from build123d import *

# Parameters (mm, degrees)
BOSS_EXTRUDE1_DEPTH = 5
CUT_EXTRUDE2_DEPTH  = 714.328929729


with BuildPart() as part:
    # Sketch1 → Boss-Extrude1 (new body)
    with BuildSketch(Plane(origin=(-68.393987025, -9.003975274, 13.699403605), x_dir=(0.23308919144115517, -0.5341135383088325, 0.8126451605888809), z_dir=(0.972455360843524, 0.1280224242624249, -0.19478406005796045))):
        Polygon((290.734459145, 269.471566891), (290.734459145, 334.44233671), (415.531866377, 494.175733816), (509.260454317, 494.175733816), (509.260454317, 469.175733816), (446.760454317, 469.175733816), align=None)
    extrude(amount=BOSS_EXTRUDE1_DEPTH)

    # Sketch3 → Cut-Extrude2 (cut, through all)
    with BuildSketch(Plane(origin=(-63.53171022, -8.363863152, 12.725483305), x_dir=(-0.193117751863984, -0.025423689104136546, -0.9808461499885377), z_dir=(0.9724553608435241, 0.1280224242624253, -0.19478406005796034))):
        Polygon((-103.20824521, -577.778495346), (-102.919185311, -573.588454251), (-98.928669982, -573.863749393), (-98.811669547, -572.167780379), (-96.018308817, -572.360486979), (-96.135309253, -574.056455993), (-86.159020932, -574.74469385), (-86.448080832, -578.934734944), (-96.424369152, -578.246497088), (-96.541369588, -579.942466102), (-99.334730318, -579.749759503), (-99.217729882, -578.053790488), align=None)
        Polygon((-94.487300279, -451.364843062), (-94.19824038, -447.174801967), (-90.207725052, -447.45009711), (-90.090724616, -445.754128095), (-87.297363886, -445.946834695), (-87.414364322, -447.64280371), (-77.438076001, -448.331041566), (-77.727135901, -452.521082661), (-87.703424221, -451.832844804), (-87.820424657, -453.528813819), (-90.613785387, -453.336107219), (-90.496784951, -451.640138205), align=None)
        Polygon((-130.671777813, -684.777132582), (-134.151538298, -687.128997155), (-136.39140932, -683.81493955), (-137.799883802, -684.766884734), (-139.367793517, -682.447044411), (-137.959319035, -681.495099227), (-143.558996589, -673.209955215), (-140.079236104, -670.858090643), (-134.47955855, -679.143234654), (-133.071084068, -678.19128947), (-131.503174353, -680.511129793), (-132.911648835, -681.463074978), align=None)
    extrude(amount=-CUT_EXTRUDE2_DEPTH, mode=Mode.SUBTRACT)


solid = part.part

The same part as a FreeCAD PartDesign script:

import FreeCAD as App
import Part
import Sketcher
Q = App.Units.Quantity


def add_polygon(sketch, points):
    """Adds a closed chain of lines whose ends are joined by coincident constraints."""
    first, n = sketch.GeometryCount, len(points)
    for a, b in zip(points, points[1:] + points[:1]):
        sketch.addGeometry(Part.LineSegment(App.Vector(*a, 0), App.Vector(*b, 0)), False)
    for i in range(n):
        sketch.addConstraint(Sketcher.Constraint("Coincident", first + i, 2, first + (i + 1) % n, 1))

doc = App.newDocument("Part")
params = doc.addObject("Spreadsheet::Sheet", "Params")
for row, (alias, value) in enumerate([
    ("sketch1_height", "25 mm"),
    ("sketch1_width", "62.5 mm"),
    ("pad1_length", "5 mm"),
    ("sketch2_length", "4 mm"),
    ("sketch2_length2", "10 mm"),
    ("sketch2_length3", "4.2 mm"),
    ("sketch2_length4", "1.7 mm"),
    ("sketch2_length5", "2.8 mm"),
], start=1):
    params.set(f"A{row}", alias)
    params.set(f"B{row}", "=" + value)
    params.setAlias(f"B{row}", alias)

body = doc.addObject("PartDesign::Body", "Body")

sketch1 = body.newObject("Sketcher::SketchObject", "Sketch")
sketch1.Placement = App.Placement(App.Vector(-68.393987, -9.003975, 13.699404), App.Rotation(App.Vector(0.233089191, -0.534113538, 0.812645161), App.Vector(0, -0.835663202, -0.549242217), App.Vector(0.972455361, 0.128022424, -0.19478406), "ZXY"))
add_polygon(sketch1, [(290.734459, 334.442337), (290.734459, 269.471567), (446.760454, 469.175734), (509.260454, 469.175734), (509.260454, 494.175734), (415.531866, 494.175734)])
sketch1.addConstraint(Sketcher.Constraint("Vertical", 0))
sketch1.addConstraint(Sketcher.Constraint("Horizontal", 2))
sketch1.addConstraint(Sketcher.Constraint("Vertical", 3))
sketch1.addConstraint(Sketcher.Constraint("Horizontal", 4))
sketch1.addConstraint(Sketcher.Constraint("Parallel", 1, 5))
sketch1.addConstraint(Sketcher.Constraint("DistanceY", 3, 1, 3, 2, Q("25 mm")))
sketch1.addConstraint(Sketcher.Constraint("Angle", 1, Q("52 deg")))
sketch1.addConstraint(Sketcher.Constraint("DistanceX", 2, 1, 2, 2, Q("62.5 mm")))
sketch1.addConstraint(Sketcher.Constraint("DistanceY", 0, 2, 0, 1, Q("64.97077 mm")))
sketch1.addConstraint(Sketcher.Constraint("Distance", 5, Q("202.704591 mm")))
sketch1.addConstraint(Sketcher.Constraint("DistanceX", -1, 1, 0, 2, Q("290.734459 mm")))
sketch1.addConstraint(Sketcher.Constraint("DistanceY", -1, 1, 0, 2, Q("269.471567 mm")))
sketch1.setExpression("Constraints[11]", "Params.sketch1_height")
sketch1.setExpression("Constraints[13]", "Params.sketch1_width")
pad1 = body.newObject("PartDesign::Pad", "Pad")
pad1.Profile = sketch1
pad1.setExpression("Length", "Params.pad1_length")

sketch2 = body.newObject("Sketcher::SketchObject", "Sketch001")
sketch2.Placement = App.Placement(App.Vector(-63.53171, -8.363863, 12.725483), App.Rotation(App.Vector(-0.193117752, -0.025423689, -0.98084615), App.Vector(-0.130522431, 0.991445357, 0), App.Vector(0.972455361, 0.128022424, -0.19478406), "ZXY"))
add_polygon(sketch2, [(-102.919185, -573.588454), (-103.208245, -577.778496), (-99.21773, -578.053791), (-99.33473, -579.74976), (-96.54137, -579.942466), (-96.424369, -578.246497), (-86.448081, -578.934735), (-86.159021, -574.744694), (-96.135309, -574.056456), (-96.018309, -572.360487), (-98.81167, -572.167781), (-98.92867, -573.86375)])
add_polygon(sketch2, [(-94.19824, -447.174802), (-94.4873, -451.364843), (-90.496785, -451.640138), (-90.613785, -453.336107), (-87.820425, -453.528814), (-87.703424, -451.832845), (-77.727136, -452.521083), (-77.438076, -448.331042), (-87.414364, -447.642804), (-87.297364, -445.946835), (-90.090725, -445.754128), (-90.207725, -447.450097)])
add_polygon(sketch2, [(-134.151538, -687.128997), (-130.671778, -684.777133), (-132.911649, -681.463075), (-131.503174, -680.51113), (-133.071084, -678.19129), (-134.479559, -679.143235), (-140.079236, -670.858091), (-143.558997, -673.209955), (-137.959319, -681.495099), (-139.367794, -682.447045), (-137.799884, -684.766885), (-136.391409, -683.81494)])
sketch2.addConstraint(Sketcher.Constraint("Perpendicular", 0, 1))
sketch2.addConstraint(Sketcher.Constraint("Perpendicular", 1, 2))
sketch2.addConstraint(Sketcher.Constraint("Perpendicular", 2, 3))
sketch2.addConstraint(Sketcher.Constraint("Perpendicular", 3, 4))
sketch2.addConstraint(Sketcher.Constraint("Perpendicular", 4, 5))
sketch2.addConstraint(Sketcher.Constraint("Perpendicular", 5, 6))
sketch2.addConstraint(Sketcher.Constraint("Perpendicular", 6, 7))
sketch2.addConstraint(Sketcher.Constraint("Perpendicular", 7, 8))
sketch2.addConstraint(Sketcher.Constraint("Perpendicular", 8, 9))
sketch2.addConstraint(Sketcher.Constraint("Perpendicular", 9, 10))
sketch2.addConstraint(Sketcher.Constraint("Perpendicular", 10, 11))
sketch2.addConstraint(Sketcher.Constraint("Perpendicular", 11, 12))
sketch2.addConstraint(Sketcher.Constraint("Perpendicular", 12, 13))
sketch2.addConstraint(Sketcher.Constraint("Perpendicular", 13, 14))
sketch2.addConstraint(Sketcher.Constraint("Perpendicular", 14, 15))
sketch2.addConstraint(Sketcher.Constraint("Perpendicular", 15, 16))
sketch2.addConstraint(Sketcher.Constraint("Perpendicular", 16, 17))
sketch2.addConstraint(Sketcher.Constraint("Perpendicular", 17, 18))
sketch2.addConstraint(Sketcher.Constraint("Perpendicular", 18, 19))
sketch2.addConstraint(Sketcher.Constraint("Perpendicular", 19, 20))
sketch2.addConstraint(Sketcher.Constraint("Perpendicular", 20, 21))
sketch2.addConstraint(Sketcher.Constraint("Perpendicular", 21, 22))
sketch2.addConstraint(Sketcher.Constraint("Perpendicular", 22, 23))
sketch2.addConstraint(Sketcher.Constraint("Perpendicular", 24, 25))
sketch2.addConstraint(Sketcher.Constraint("Perpendicular", 25, 26))
sketch2.addConstraint(Sketcher.Constraint("Perpendicular", 26, 27))
sketch2.addConstraint(Sketcher.Constraint("Perpendicular", 27, 28))
sketch2.addConstraint(Sketcher.Constraint("Perpendicular", 28, 29))
sketch2.addConstraint(Sketcher.Constraint("Perpendicular", 29, 30))
sketch2.addConstraint(Sketcher.Constraint("Perpendicular", 30, 31))
sketch2.addConstraint(Sketcher.Constraint("Perpendicular", 31, 32))
sketch2.addConstraint(Sketcher.Constraint("Perpendicular", 32, 33))
sketch2.addConstraint(Sketcher.Constraint("Perpendicular", 33, 34))
sketch2.addConstraint(Sketcher.Constraint("Perpendicular", 34, 35))
sketch2.addConstraint(Sketcher.Constraint("Equal", 2, 4))
sketch2.addConstraint(Sketcher.Constraint("Equal", 0, 6))
sketch2.addConstraint(Sketcher.Constraint("Equal", 5, 7))
sketch2.addConstraint(Sketcher.Constraint("Equal", 4, 8))
sketch2.addConstraint(Sketcher.Constraint("Equal", 3, 9))
sketch2.addConstraint(Sketcher.Constraint("Equal", 6, 12))
sketch2.addConstraint(Sketcher.Constraint("Equal", 11, 13))
sketch2.addConstraint(Sketcher.Constraint("Equal", 10, 14))
sketch2.addConstraint(Sketcher.Constraint("Equal", 9, 15))
sketch2.addConstraint(Sketcher.Constraint("Equal", 14, 16))
sketch2.addConstraint(Sketcher.Constraint("Equal", 7, 17))
sketch2.addConstraint(Sketcher.Constraint("Equal", 12, 18))
sketch2.addConstraint(Sketcher.Constraint("Equal", 17, 19))
sketch2.addConstraint(Sketcher.Constraint("Equal", 16, 20))
sketch2.addConstraint(Sketcher.Constraint("Equal", 15, 21))
sketch2.addConstraint(Sketcher.Constraint("Equal", 18, 24))
sketch2.addConstraint(Sketcher.Constraint("Equal", 23, 25))
sketch2.addConstraint(Sketcher.Constraint("Equal", 22, 26))
sketch2.addConstraint(Sketcher.Constraint("Equal", 21, 27))
sketch2.addConstraint(Sketcher.Constraint("Equal", 26, 28))
sketch2.addConstraint(Sketcher.Constraint("Equal", 19, 29))
sketch2.addConstraint(Sketcher.Constraint("Equal", 24, 30))
sketch2.addConstraint(Sketcher.Constraint("Equal", 29, 31))
sketch2.addConstraint(Sketcher.Constraint("Equal", 28, 32))
sketch2.addConstraint(Sketcher.Constraint("Equal", 27, 33))
sketch2.addConstraint(Sketcher.Constraint("Distance", 1, Q("4 mm")))
sketch2.addConstraint(Sketcher.Constraint("Distance", 5, Q("10 mm")))
sketch2.addConstraint(Sketcher.Constraint("Distance", 0, Q("4.2 mm")))
sketch2.addConstraint(Sketcher.Constraint("Distance", 2, Q("1.7 mm")))
sketch2.addConstraint(Sketcher.Constraint("Distance", 3, Q("2.8 mm")))
sketch2.addConstraint(Sketcher.Constraint("DistanceX", 2, 2, 1, 2, Q("0.117 mm")))
sketch2.addConstraint(Sketcher.Constraint("DistanceX", 12, 2, -1, 1, Q("94.4873 mm")))
sketch2.addConstraint(Sketcher.Constraint("DistanceY", 31, 2, -1, 1, Q("681.495099 mm")))
sketch2.addConstraint(Sketcher.Constraint("DistanceY", 27, 2, 29, 2, Q("7.333199 mm")))
sketch2.addConstraint(Sketcher.Constraint("DistanceX", 1, 2, -1, 1, Q("99.21773 mm")))
sketch2.addConstraint(Sketcher.Constraint("DistanceY", 1, 2, -1, 1, Q("578.053791 mm")))
sketch2.addConstraint(Sketcher.Constraint("DistanceY", 13, 2, -1, 1, Q("451.640138 mm")))
sketch2.addConstraint(Sketcher.Constraint("DistanceX", 25, 2, -1, 1, Q("132.911649 mm")))
sketch2.setExpression("Constraints[95]", "Params.sketch2_length")
sketch2.setExpression("Constraints[96]", "Params.sketch2_length2")
sketch2.setExpression("Constraints[97]", "Params.sketch2_length3")
sketch2.setExpression("Constraints[98]", "Params.sketch2_length4")
sketch2.setExpression("Constraints[99]", "Params.sketch2_length5")
pocket1 = body.newObject("PartDesign::Pocket", "Pocket")
pocket1.Profile = sketch2
pocket1.Type = "ThroughAll"

doc.recompute()
